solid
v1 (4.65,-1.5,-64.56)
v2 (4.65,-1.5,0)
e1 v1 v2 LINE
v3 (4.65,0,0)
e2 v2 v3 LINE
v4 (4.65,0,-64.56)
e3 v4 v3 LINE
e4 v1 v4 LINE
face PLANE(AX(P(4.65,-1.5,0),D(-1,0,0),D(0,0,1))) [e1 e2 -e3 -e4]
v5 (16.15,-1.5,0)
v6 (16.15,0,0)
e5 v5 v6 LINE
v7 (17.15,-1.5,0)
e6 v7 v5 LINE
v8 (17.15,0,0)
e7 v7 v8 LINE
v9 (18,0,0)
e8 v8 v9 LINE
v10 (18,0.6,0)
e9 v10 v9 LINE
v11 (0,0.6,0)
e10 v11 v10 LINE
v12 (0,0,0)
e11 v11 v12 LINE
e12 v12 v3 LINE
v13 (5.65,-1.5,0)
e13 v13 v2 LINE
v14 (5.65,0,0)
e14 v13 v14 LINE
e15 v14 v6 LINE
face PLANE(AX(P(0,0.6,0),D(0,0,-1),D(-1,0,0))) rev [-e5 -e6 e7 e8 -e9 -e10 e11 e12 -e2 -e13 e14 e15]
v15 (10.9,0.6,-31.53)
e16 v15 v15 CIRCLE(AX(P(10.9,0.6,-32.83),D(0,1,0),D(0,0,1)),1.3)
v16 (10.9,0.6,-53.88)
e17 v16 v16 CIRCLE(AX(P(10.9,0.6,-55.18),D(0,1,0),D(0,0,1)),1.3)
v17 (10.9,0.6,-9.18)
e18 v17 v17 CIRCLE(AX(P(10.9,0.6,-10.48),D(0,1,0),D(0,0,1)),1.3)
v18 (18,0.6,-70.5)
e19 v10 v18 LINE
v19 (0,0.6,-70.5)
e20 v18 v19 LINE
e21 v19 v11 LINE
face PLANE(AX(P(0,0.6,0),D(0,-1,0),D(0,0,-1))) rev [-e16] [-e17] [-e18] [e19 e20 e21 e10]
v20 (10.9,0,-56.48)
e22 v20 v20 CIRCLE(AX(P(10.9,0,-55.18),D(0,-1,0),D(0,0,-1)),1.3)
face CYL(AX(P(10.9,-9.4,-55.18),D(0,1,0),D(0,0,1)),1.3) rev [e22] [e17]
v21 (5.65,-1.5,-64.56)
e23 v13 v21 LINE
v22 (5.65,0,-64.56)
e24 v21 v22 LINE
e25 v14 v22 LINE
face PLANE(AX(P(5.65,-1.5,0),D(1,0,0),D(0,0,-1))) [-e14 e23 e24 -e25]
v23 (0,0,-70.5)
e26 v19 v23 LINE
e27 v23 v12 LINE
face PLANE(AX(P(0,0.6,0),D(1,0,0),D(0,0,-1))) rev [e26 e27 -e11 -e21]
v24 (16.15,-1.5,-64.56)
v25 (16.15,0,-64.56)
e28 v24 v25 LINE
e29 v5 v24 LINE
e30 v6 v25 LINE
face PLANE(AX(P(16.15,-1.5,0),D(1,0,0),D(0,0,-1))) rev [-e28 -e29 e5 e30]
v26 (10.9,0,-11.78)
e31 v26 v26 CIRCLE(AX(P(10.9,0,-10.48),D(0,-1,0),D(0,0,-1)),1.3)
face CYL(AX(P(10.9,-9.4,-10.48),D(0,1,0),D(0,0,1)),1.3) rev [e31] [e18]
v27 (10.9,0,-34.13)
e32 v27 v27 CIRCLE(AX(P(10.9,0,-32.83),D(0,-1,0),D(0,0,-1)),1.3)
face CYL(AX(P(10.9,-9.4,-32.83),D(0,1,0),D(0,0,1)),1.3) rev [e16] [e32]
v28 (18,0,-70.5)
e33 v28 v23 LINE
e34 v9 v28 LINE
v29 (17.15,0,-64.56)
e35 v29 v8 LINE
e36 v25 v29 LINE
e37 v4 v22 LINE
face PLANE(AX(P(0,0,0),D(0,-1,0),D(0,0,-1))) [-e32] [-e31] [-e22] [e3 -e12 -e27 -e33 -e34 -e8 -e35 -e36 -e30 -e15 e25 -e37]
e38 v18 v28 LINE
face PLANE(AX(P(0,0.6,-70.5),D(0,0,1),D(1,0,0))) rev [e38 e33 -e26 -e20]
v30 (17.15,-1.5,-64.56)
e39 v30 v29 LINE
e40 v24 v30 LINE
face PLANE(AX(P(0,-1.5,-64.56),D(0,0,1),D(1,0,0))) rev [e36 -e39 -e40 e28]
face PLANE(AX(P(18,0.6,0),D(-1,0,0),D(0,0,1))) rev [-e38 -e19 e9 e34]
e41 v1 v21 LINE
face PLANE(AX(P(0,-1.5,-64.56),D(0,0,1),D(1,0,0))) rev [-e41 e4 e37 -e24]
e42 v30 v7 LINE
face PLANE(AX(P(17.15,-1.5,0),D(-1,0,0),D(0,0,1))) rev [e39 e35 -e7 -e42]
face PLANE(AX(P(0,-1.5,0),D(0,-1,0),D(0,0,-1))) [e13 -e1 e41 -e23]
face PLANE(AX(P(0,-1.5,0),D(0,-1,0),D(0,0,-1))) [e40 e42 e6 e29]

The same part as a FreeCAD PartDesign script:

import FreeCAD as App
import Part
import Sketcher
from FreeCAD import Vector
Q = App.Units.Quantity


def add_polygon(sketch, points):
    """Adds a closed chain of lines whose ends are joined by coincident constraints."""
    first, n = sketch.GeometryCount, len(points)
    for a, b in zip(points, points[1:] + points[:1]):
        sketch.addGeometry(Part.LineSegment(App.Vector(*a, 0), App.Vector(*b, 0)), False)
    for i in range(n):
        sketch.addConstraint(Sketcher.Constraint("Coincident", first + i, 2, first + (i + 1) % n, 1))

doc = App.newDocument("Part")
body = doc.addObject("PartDesign::Body", "Body")

sketch1 = body.newObject("Sketcher::SketchObject", "Sketch")
sketch1.AttachmentSupport = (doc.getObject("XZ_Plane"), [""])
sketch1.MapMode = "FlatFace"
add_polygon(sketch1, [(0, -70), (0, 0), (18, 0), (18, -70)])
sketch1.addConstraint(Sketcher.Constraint("Vertical", 0))
sketch1.addConstraint(Sketcher.Constraint("Horizontal", 1))
sketch1.addConstraint(Sketcher.Constraint("Vertical", 2))
sketch1.addConstraint(Sketcher.Constraint("Horizontal", 3))
sketch1.addConstraint(Sketcher.Constraint("Coincident", 0, 2, -1, 1))
sketch1.addConstraint(Sketcher.Constraint("DistanceX", 1, 1, 1, 2, Q("18 mm")))
sketch1.addConstraint(Sketcher.Constraint("DistanceY", 0, 1, 0, 2, Q("70.5 mm")))
pad1 = body.newObject("PartDesign::Pad", "Pad")
pad1.Profile = sketch1
pad1.Length = 0.6
pad1.Reversed = True

sketch2 = body.newObject("Sketcher::SketchObject", "Sketch001")
sketch2.AttachmentSupport = (doc.getObject("XZ_Plane"), [""])
sketch2.MapMode = "FlatFace"
sketch2.AttachmentOffset = App.Placement(Vector(0, 0, -0.6), App.Rotation())
sketch2.addGeometry(Part.Circle(Vector(10.9, -10.5, 0), Vector(0, 0, 1), 1.3), False)
sketch2.addGeometry(Part.Circle(Vector(10.9, -32.8, 0), Vector(0, 0, 1), 1.3), False)
sketch2.addGeometry(Part.Circle(Vector(10.9, -55.2, 0), Vector(0, 0, 1), 1.3), False)
sketch2.addConstraint(Sketcher.Constraint("Equal", 0, 1))
sketch2.addConstraint(Sketcher.Constraint("Equal", 1, 2))
sketch2.addConstraint(Sketcher.Constraint("Vertical", 0, 3, 1, 3))
sketch2.addConstraint(Sketcher.Constraint("Vertical", 1, 3, 2, 3))
sketch2.addConstraint(Sketcher.Constraint("Diameter", 0, Q("2.6 mm")))
sketch2.addConstraint(Sketcher.Constraint("DistanceX", -1, 1, 0, 3, Q("10.9 mm")))
sketch2.addConstraint(Sketcher.Constraint("DistanceY", 2, 3, 0, 3, Q("44.7 mm")))
sketch2.addConstraint(Sketcher.Constraint("DistanceY", 0, 3, -1, 1, Q("10.48 mm")))
sketch2.addConstraint(Sketcher.Constraint("DistanceY", 1, 3, -1, 1, Q("32.83 mm")))
pocket1 = body.newObject("PartDesign::Pocket", "Pocket")
pocket1.Profile = sketch2
pocket1.Length = 10
pocket1.Reversed = True

sketch3 = body.newObject("Sketcher::SketchObject", "Sketch002")
sketch3.AttachmentSupport = (doc.getObject("XZ_Plane"), [""])
sketch3.MapMode = "FlatFace"
add_polygon(sketch3, [(4.7, 0), (4.7, -64.6), (5.7, -64.6), (5.7, 0)])
add_polygon(sketch3, [(16.1, 0), (16.1, -64.6), (17.1, -64.6), (17.1, 0)])
sketch3.addConstraint(Sketcher.Constraint("Vertical", 0))
sketch3.addConstraint(Sketcher.Constraint("Horizontal", 1))
sketch3.addConstraint(Sketcher.Constraint("Vertical", 2))
sketch3.addConstraint(Sketcher.Constraint("Horizontal", 3))
sketch3.addConstraint(Sketcher.Constraint("Vertical", 4))
sketch3.addConstraint(Sketcher.Constraint("Horizontal", 5))
sketch3.addConstraint(Sketcher.Constraint("Vertical", 6))
sketch3.addConstraint(Sketcher.Constraint("Horizontal", 7))
sketch3.addConstraint(Sketcher.Constraint("PointOnObject", 2, 2, -1))
sketch3.addConstraint(Sketcher.Constraint("PointOnObject", 6, 2, -1))
sketch3.addConstraint(Sketcher.Constraint("Horizontal", 1, 2, 4, 2))
sketch3.addConstraint(Sketcher.Constraint("Equal", 3, 5))
sketch3.addConstraint(Sketcher.Constraint("DistanceX", 1, 1, 1, 2, Q("1 mm")))
sketch3.addConstraint(Sketcher.Constraint("DistanceY", 0, 2, 0, 1, Q("64.56 mm")))
sketch3.addConstraint(Sketcher.Constraint("DistanceX", 1, 2, 4, 2, Q("10.5 mm")))
sketch3.addConstraint(Sketcher.Constraint("DistanceX", -1, 1, 0, 2, Q("4.65 mm")))
pad2 = body.newObject("PartDesign::Pad", "Pad001")
pad2.Profile = sketch3
pad2.Length = 1.5

doc.recompute()
